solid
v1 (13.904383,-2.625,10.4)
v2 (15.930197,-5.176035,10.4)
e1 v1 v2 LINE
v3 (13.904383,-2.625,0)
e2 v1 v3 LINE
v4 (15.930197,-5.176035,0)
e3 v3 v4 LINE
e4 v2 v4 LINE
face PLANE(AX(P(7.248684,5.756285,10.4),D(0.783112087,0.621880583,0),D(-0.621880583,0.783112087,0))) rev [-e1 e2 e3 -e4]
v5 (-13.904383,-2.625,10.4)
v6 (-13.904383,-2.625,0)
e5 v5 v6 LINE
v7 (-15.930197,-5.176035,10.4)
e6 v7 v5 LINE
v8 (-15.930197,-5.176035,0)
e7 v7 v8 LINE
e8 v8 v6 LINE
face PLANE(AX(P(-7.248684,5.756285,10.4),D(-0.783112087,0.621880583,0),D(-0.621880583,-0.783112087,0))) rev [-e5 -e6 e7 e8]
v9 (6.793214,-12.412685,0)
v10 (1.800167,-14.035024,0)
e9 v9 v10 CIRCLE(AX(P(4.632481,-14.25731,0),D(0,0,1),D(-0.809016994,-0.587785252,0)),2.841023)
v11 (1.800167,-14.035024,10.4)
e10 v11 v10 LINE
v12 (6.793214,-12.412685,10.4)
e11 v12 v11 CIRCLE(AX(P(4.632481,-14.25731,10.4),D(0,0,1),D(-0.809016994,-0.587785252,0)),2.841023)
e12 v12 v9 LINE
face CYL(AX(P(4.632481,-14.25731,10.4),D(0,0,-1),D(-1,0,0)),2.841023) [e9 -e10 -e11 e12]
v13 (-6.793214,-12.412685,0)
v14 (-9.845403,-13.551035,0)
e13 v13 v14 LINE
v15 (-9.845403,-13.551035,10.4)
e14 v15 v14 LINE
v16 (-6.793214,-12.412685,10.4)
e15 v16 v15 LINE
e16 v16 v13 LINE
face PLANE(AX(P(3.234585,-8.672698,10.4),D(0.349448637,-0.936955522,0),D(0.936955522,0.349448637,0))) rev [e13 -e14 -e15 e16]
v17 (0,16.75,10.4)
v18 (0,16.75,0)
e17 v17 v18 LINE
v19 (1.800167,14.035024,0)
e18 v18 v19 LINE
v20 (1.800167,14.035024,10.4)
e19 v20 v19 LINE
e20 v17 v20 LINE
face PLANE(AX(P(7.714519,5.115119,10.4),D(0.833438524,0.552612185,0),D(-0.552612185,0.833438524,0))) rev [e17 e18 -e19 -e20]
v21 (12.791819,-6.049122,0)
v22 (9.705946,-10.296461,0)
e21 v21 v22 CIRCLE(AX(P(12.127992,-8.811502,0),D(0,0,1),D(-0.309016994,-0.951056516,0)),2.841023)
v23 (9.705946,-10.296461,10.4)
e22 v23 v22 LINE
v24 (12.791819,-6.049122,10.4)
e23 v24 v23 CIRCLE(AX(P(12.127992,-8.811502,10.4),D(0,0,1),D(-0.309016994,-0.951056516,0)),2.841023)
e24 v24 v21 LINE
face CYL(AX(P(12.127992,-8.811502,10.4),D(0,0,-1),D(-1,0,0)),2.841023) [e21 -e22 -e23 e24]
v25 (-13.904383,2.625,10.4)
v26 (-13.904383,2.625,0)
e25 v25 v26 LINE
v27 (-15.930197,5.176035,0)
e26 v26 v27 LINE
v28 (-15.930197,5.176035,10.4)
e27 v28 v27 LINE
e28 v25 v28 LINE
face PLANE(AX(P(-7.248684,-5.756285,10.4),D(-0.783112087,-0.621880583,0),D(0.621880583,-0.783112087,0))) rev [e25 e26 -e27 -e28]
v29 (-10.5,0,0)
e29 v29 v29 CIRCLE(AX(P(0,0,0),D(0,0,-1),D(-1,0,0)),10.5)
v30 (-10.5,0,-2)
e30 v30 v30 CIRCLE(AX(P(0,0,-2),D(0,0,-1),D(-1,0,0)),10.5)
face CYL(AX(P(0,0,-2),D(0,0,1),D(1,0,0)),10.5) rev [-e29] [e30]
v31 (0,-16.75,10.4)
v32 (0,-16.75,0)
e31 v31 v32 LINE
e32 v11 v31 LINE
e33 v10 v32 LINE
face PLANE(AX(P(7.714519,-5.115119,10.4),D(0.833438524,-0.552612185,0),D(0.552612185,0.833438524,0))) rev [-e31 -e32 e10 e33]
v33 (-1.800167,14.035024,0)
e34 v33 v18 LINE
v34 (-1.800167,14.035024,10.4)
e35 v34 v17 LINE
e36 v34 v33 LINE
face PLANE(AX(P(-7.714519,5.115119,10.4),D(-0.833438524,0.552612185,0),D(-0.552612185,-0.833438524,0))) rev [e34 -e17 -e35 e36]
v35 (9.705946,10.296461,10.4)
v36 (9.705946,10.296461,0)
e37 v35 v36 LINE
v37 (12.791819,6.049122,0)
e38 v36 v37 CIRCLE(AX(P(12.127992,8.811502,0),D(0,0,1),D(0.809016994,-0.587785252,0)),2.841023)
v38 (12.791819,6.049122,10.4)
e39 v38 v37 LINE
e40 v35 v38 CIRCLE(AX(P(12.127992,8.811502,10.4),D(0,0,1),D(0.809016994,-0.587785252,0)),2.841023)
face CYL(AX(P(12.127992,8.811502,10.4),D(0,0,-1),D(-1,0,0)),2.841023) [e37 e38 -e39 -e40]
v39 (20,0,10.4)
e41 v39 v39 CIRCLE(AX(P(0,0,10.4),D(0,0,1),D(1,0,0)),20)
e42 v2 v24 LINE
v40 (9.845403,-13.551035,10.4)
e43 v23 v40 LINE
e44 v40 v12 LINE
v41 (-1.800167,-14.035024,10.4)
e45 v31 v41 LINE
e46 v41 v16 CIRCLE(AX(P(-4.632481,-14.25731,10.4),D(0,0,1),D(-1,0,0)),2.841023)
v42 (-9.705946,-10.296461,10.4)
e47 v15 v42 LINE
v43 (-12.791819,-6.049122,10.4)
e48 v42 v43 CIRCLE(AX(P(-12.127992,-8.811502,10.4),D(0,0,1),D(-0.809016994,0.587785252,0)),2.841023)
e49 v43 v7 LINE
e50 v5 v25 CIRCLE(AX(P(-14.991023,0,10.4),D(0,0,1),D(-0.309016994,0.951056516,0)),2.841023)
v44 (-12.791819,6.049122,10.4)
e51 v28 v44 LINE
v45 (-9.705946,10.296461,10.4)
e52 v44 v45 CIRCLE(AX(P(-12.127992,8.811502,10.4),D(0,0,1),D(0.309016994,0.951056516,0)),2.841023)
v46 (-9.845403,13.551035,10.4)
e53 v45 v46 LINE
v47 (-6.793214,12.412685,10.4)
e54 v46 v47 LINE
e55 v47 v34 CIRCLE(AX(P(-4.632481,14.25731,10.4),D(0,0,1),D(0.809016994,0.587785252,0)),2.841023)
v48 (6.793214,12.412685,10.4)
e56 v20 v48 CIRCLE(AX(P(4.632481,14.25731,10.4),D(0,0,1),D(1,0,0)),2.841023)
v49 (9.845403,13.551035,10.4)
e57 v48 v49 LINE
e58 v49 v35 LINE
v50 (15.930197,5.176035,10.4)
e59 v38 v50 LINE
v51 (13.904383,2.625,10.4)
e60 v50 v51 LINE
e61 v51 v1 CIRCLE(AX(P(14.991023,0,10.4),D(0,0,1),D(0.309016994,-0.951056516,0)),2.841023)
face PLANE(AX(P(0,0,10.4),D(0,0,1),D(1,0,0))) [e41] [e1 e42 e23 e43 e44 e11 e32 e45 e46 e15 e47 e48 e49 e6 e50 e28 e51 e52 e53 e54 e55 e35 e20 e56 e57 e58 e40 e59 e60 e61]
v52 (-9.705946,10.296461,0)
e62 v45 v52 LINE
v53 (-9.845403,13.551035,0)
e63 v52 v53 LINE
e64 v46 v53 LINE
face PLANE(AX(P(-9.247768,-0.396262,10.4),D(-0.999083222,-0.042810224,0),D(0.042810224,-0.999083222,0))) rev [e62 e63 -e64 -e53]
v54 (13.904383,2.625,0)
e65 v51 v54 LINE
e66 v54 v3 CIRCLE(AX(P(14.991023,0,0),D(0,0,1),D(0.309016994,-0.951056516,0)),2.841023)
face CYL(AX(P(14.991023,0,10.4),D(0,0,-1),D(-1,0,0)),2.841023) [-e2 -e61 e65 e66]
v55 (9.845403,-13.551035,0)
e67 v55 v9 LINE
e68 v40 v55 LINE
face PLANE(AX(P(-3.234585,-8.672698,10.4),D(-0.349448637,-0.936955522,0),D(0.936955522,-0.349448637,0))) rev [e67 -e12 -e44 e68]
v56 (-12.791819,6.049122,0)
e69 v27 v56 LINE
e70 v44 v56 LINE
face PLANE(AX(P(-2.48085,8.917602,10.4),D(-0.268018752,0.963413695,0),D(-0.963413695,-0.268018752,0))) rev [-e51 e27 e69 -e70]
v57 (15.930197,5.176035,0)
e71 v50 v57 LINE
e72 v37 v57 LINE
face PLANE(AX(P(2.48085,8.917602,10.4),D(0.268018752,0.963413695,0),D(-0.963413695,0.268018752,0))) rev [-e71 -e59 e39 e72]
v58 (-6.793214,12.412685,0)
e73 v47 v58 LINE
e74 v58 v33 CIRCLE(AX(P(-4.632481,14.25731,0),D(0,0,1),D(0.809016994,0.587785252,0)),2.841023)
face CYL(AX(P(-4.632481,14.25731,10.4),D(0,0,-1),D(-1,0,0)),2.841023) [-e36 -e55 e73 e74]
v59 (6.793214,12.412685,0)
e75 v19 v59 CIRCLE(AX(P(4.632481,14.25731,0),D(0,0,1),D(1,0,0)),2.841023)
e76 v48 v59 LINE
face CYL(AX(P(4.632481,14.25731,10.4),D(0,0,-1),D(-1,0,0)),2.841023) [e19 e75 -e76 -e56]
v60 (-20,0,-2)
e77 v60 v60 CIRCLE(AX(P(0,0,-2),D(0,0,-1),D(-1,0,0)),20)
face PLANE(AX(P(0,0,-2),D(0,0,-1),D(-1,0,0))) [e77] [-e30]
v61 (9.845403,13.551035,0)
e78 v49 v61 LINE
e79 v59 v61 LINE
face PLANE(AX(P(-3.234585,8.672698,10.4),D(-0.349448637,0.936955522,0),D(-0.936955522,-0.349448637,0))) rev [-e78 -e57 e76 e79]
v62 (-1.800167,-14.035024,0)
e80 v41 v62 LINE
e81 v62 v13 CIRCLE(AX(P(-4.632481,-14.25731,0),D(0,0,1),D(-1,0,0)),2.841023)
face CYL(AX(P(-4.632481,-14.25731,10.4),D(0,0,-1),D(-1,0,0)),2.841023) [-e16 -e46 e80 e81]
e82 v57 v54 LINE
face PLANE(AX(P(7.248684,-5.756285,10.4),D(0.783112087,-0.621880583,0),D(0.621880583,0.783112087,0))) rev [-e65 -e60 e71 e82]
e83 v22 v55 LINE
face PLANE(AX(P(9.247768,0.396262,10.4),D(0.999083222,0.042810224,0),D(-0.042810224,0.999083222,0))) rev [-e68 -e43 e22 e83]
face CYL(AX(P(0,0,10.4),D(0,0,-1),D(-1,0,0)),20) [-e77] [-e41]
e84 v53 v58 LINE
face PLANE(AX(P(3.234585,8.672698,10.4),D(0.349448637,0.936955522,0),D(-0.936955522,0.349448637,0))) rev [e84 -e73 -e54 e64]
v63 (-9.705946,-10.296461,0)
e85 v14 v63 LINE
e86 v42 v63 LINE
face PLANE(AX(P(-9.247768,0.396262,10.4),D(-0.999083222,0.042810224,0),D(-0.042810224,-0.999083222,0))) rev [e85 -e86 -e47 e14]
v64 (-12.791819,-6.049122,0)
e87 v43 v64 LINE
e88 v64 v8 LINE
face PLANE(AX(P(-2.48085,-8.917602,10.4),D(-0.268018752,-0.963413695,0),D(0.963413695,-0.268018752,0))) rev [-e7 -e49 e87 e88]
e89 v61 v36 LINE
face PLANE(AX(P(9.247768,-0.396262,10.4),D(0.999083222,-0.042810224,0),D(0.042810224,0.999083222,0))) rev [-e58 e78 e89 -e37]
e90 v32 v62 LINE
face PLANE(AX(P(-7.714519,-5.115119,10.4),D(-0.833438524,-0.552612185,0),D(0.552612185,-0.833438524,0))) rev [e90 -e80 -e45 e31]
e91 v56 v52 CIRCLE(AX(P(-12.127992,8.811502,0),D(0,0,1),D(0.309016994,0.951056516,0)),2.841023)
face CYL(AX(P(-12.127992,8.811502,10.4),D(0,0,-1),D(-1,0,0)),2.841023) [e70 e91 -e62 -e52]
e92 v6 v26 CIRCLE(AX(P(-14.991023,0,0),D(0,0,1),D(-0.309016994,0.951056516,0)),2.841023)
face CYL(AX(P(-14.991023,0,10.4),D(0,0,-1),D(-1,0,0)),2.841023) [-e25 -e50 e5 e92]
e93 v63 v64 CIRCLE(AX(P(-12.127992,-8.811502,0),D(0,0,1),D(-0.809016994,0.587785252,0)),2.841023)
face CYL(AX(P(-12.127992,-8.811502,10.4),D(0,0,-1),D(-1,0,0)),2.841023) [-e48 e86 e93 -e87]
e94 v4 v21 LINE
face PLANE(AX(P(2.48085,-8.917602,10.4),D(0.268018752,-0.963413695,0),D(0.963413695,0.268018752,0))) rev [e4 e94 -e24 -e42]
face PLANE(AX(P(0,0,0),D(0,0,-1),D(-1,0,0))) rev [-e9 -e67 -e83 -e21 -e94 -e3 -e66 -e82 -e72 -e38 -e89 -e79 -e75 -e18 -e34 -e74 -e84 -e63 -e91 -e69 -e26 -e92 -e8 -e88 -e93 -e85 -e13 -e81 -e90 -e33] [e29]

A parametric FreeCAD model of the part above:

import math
import FreeCAD as App
import Part
import Sketcher

V = App.Vector
Q = App.Units.Quantity

doc = App.newDocument("Part")
params = doc.addObject("Spreadsheet::Sheet", "Params")
for row, (alias, value) in enumerate([
    ("sketch1_radius", "20 mm"),
    ("sketch1_height", "3.25 mm"),
    ("sketch1_length", "3.25 mm"),
    ("pad1_length", "10.4 mm"),
    ("sketch2_diameter", "40 mm"),
    ("sketch2_diameter2", "21 mm"),
    ("pad2_length", "2 mm"),
], start=1):
    params.set(f"A{row}", alias)
    params.set(f"B{row}", "=" + value)
    params.setAlias(f"B{row}", alias)

body = doc.addObject("PartDesign::Body", "Body")

# Sketch on XY plane
sketch1 = body.newObject("Sketcher::SketchObject", "Sketch")
sketch1.AttachmentSupport = (doc.getObject("XY_Plane"), [""])
sketch1.MapMode = "FlatFace"
sketch1.addGeometry([
    Part.LineSegment(V(0, 16.8, 0), V(1.8, 14, 0)),  # 0
    Part.ArcOfCircle(Part.Circle(V(4.6, 14.3, 0), V(0, 0, 1), 2.8), math.radians(-176), math.radians(-108)),  # 1
    Part.ArcOfCircle(Part.Circle(V(4.6, 14.3, 0), V(0, 0, 1), 2.8), math.radians(-108), math.radians(-40)),  # 2
    Part.LineSegment(V(6.8, 12.4, 0), V(9.8, 13.6, 0)),  # 3
    Part.LineSegment(V(9.8, 13.6, 0), V(11.8, 16.2, 0)),  # 4
    Part.ArcOfCircle(Part.Circle(V(0, 0, 0), V(0, 0, 1), 20), math.radians(54), math.radians(90)),  # 5
    Part.LineSegment(V(0, 20, 0), V(0, 16.8, 0)),  # 6
], False)
sketch1.addConstraint([
    Sketcher.Constraint("Coincident", 0, 2, 1, 1),
    Sketcher.Constraint("Tangent", 1, 2, 2, 1),
    Sketcher.Constraint("Coincident", 2, 2, 3, 1),
    Sketcher.Constraint("Coincident", 3, 2, 4, 1),
    Sketcher.Constraint("Coincident", 4, 2, 5, 1),
    Sketcher.Constraint("Coincident", 5, 2, 6, 1),
    Sketcher.Constraint("Coincident", 6, 2, 0, 1),
    Sketcher.Constraint("Vertical", 6),
    Sketcher.Constraint("Coincident", 5, 3, -1, 1),
    Sketcher.Constraint("Equal", 1, 2),
    Sketcher.Constraint("PointOnObject", 5, 2, -2),
    Sketcher.Constraint("Equal", 0, 3),
    Sketcher.Constraint("Radius", 5, 20.0),
    Sketcher.Constraint("Angle", 4, Q("54 deg")),
    Sketcher.Constraint("DistanceY", 6, 2, 6, 1, 3.25),
    Sketcher.Constraint("Distance", 4, 3.25),
    Sketcher.Constraint("Radius", 1, 2.841023),
    Sketcher.Constraint("Distance", 0, 3.25756),
    Sketcher.Constraint("DistanceX", -1, 1, 1, 3, 4.632481),
    Sketcher.Constraint("DistanceY", -1, 1, 1, 3, 14.25731),
    Sketcher.Constraint("DistanceY", -1, 1, 4, 2, 16.18034),
    Sketcher.Constraint("DistanceX", 0, 2, 1, 2, 1.954389),
])
sketch1.setExpression("Constraints[12]", "Params.sketch1_radius")
sketch1.setExpression("Constraints[14]", "Params.sketch1_height")
sketch1.setExpression("Constraints[15]", "Params.sketch1_length")
pad1 = body.newObject("PartDesign::Pad", "Pad")
pad1.Profile = sketch1
pad1.setExpression("Length", "Params.pad1_length")
doc.recompute()

polarpattern = body.newObject("PartDesign::PolarPattern", "PolarPattern")
polarpattern.Originals = [pad1]
polarpattern.Axis = (doc.getObject("Z_Axis"), [""])
polarpattern.Angle = 360
polarpattern.Occurrences = 10
body.Tip = polarpattern

# Sketch on XY plane
sketch2 = body.newObject("Sketcher::SketchObject", "Sketch001")
sketch2.AttachmentSupport = (doc.getObject("XY_Plane"), [""])
sketch2.MapMode = "FlatFace"
sketch2.AttachmentOffset = App.Placement(V(0, 0, -2), App.Rotation())
sketch2.addGeometry([
    Part.Circle(V(0, 0, 0), V(0, 0, 1), 20),
    Part.Circle(V(0, 0, 0), V(0, 0, 1), 10),
], False)
sketch2.addConstraint([
    Sketcher.Constraint("Coincident", 0, 3, -1, 1),
    Sketcher.Constraint("Coincident", 1, 3, -1, 1),
    Sketcher.Constraint("Diameter", 0, 40.0),
    Sketcher.Constraint("Diameter", 1, 21.0),
])
sketch2.setExpression("Constraints[2]", "Params.sketch2_diameter")
sketch2.setExpression("Constraints[3]", "Params.sketch2_diameter2")
pad2 = body.newObject("PartDesign::Pad", "Pad001")
pad2.Profile = sketch2
pad2.setExpression("Length", "Params.pad2_length")

doc.recompute()
